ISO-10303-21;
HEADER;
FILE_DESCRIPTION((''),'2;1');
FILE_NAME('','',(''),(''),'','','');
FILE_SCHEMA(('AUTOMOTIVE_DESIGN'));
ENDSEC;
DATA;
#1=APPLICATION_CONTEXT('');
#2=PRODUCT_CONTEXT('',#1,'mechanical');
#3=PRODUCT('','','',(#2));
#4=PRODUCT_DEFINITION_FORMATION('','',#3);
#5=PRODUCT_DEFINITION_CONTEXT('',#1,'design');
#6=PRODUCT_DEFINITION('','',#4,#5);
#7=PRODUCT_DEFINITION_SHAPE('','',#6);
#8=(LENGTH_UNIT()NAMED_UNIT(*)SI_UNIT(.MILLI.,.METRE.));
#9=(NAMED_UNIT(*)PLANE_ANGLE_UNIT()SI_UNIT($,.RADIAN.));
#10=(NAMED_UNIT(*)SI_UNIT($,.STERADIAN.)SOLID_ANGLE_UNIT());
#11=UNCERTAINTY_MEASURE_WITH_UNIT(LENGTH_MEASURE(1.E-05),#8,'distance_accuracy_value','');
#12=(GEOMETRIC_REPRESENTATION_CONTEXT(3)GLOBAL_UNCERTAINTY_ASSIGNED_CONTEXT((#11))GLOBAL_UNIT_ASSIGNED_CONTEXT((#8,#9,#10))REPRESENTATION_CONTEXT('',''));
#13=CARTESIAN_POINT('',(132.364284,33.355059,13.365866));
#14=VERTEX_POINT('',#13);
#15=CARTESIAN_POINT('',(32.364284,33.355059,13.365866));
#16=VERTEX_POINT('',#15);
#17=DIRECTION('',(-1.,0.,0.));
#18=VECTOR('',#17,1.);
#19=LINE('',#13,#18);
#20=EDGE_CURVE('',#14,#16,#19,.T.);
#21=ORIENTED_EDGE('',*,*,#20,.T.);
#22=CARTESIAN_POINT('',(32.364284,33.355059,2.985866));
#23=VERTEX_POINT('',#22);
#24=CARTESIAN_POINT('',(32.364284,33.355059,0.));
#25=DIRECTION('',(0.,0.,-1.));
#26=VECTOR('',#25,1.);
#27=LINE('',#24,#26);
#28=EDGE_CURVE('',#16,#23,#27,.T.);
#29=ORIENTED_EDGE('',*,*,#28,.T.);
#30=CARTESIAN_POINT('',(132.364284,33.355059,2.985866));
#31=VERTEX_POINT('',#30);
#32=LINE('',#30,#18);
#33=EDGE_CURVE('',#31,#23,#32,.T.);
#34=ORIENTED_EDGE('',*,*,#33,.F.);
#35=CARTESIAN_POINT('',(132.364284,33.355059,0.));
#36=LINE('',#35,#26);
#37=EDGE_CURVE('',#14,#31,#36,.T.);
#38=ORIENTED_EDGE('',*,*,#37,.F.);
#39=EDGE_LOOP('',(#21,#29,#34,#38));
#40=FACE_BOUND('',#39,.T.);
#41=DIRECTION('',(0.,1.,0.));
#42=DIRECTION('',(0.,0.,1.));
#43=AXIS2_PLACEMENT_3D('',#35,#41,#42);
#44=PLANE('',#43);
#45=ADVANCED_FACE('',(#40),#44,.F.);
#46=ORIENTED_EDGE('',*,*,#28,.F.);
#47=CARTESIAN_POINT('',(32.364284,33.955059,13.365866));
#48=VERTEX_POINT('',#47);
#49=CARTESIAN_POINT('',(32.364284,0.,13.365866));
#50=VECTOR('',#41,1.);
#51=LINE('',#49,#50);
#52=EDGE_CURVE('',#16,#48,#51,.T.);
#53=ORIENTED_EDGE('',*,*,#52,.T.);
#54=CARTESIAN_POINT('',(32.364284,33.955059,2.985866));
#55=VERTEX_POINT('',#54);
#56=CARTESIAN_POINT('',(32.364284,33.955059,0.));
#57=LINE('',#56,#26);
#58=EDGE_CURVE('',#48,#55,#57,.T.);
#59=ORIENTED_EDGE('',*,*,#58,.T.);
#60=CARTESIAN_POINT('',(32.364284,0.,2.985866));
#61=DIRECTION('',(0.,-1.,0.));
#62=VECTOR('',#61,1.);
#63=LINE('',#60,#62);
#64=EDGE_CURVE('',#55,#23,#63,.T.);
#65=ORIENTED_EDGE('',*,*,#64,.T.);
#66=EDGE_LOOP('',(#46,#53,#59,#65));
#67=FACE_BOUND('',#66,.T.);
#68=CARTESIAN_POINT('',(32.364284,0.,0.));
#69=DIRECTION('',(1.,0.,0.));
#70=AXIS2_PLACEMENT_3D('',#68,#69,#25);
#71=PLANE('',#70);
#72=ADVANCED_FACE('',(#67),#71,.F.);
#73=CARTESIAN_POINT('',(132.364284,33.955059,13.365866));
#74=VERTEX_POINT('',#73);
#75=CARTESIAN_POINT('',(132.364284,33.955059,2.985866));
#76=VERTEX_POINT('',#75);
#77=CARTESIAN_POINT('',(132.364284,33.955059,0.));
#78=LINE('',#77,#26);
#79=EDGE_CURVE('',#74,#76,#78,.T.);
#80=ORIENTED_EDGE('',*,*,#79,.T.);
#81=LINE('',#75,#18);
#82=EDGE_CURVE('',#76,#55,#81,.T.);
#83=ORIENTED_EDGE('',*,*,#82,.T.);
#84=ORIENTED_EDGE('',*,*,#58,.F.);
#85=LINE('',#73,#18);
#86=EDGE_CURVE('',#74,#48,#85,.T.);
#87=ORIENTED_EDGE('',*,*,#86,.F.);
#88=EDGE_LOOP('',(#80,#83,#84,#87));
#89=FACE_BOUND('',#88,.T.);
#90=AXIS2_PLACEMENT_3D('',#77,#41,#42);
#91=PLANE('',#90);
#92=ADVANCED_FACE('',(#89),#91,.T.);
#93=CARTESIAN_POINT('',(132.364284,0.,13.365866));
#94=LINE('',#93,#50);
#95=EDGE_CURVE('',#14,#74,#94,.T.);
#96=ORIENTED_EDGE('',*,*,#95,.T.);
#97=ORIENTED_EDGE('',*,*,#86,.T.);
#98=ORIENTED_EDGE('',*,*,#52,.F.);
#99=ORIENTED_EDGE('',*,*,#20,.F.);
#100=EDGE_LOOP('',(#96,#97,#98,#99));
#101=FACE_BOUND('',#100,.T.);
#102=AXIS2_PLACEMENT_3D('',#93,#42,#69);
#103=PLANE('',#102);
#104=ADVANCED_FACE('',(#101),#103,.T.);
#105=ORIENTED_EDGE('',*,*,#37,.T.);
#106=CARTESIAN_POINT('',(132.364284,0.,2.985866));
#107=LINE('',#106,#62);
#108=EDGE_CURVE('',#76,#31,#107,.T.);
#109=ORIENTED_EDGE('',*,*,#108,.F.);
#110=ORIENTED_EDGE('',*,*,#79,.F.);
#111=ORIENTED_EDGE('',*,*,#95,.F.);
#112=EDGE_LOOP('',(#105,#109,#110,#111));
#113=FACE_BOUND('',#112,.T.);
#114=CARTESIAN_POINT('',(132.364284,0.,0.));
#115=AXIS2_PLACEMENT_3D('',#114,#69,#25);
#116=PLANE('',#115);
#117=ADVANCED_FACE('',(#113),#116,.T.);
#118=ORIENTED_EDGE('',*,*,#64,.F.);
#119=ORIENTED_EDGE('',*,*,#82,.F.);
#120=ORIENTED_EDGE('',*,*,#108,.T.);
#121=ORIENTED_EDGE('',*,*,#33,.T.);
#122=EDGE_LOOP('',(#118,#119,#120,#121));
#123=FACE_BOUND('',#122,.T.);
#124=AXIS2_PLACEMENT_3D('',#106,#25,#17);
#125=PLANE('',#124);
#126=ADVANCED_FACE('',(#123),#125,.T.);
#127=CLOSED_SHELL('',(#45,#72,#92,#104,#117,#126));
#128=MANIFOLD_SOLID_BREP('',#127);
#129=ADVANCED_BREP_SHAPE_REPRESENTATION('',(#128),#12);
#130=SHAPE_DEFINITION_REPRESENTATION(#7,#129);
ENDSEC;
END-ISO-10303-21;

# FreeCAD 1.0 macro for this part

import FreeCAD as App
import Part
import Sketcher

V = App.Vector
Q = App.Units.Quantity


def add_polygon(sketch, points):
    """Adds a closed chain of lines whose ends are joined by coincident constraints."""
    first, n = sketch.GeometryCount, len(points)
    for a, b in zip(points, points[1:] + points[:1]):
        sketch.addGeometry(Part.LineSegment(App.Vector(*a, 0), App.Vector(*b, 0)), False)
    for i in range(n):
        sketch.addConstraint(Sketcher.Constraint("Coincident", first + i, 2, first + (i + 1) % n, 1))

doc = App.newDocument("Part")
body = doc.addObject("PartDesign::Body", "Body")

sketch1 = body.newObject("Sketcher::SketchObject", "Sketch")
sketch1.AttachmentSupport = (doc.getObject("YZ_Plane"), [""])
sketch1.MapMode = "FlatFace"
sketch1.AttachmentOffset = App.Placement(V(0, 0, 32.364284), App.Rotation())
add_polygon(sketch1, [(34, 3), (34, 13.4), (33.4, 13.4), (33.4, 3)])
sketch1.addConstraint([
    Sketcher.Constraint("Vertical", 0),
    Sketcher.Constraint("Horizontal", 1),
    Sketcher.Constraint("Vertical", 2),
    Sketcher.Constraint("Horizontal", 3),
    Sketcher.Constraint("DistanceX", 1, 2, 1, 1, Q("0.6 mm")),
    Sketcher.Constraint("DistanceY", 0, 1, 0, 2, Q("10.38 mm")),
    Sketcher.Constraint("DistanceX", -1, 1, 0, 2, Q("33.955059 mm")),
    Sketcher.Constraint("DistanceY", -1, 1, 0, 2, Q("13.365866 mm")),
])
pad1 = body.newObject("PartDesign::Pad", "Pad")
pad1.Profile = sketch1
pad1.Length = 100

doc.recompute()
